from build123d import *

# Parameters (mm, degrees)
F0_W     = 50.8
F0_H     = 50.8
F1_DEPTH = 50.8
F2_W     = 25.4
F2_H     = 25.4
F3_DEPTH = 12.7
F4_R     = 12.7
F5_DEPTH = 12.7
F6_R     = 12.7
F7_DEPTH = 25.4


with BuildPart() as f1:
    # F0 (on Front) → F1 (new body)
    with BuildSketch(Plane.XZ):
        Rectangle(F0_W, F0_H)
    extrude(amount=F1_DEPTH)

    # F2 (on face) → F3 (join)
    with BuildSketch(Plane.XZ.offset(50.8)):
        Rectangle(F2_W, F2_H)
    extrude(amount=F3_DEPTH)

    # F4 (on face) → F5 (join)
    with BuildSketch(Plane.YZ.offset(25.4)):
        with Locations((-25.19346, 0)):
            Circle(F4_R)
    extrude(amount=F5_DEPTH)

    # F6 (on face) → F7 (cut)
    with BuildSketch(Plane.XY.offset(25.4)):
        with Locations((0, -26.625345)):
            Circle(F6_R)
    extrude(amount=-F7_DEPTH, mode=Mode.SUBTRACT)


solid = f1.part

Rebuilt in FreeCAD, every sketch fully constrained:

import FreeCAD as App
import Part
import Sketcher
Q = App.Units.Quantity


def add_polygon(sketch, points):
    """Adds a closed chain of lines whose ends are joined by coincident constraints."""
    first, n = sketch.GeometryCount, len(points)
    for a, b in zip(points, points[1:] + points[:1]):
        sketch.addGeometry(Part.LineSegment(App.Vector(*a, 0), App.Vector(*b, 0)), False)
    for i in range(n):
        sketch.addConstraint(Sketcher.Constraint("Coincident", first + i, 2, first + (i + 1) % n, 1))

doc = App.newDocument("Part")
body = doc.addObject("PartDesign::Body", "Body")

sketch1 = body.newObject("Sketcher::SketchObject", "Sketch")
sketch1.AttachmentSupport = (doc.getObject("XZ_Plane"), [""])
sketch1.MapMode = "FlatFace"
add_polygon(sketch1, [(-25, 25), (-25, -25), (25, -25), (25, 25)])
sketch1.addConstraint(Sketcher.Constraint("Vertical", 0))
sketch1.addConstraint(Sketcher.Constraint("Horizontal", 1))
sketch1.addConstraint(Sketcher.Constraint("Vertical", 2))
sketch1.addConstraint(Sketcher.Constraint("Horizontal", 3))
sketch1.addConstraint(Sketcher.Constraint("Symmetric", 0, 2, 2, 2, -1, 1))
sketch1.addConstraint(Sketcher.Constraint("Equal", 3, 0))
sketch1.addConstraint(Sketcher.Constraint("DistanceX", 1, 1, 1, 2, Q("2 in")))
pad1 = body.newObject("PartDesign::Pad", "Pad")
pad1.Profile = sketch1
pad1.Length = Q("2 in")

sketch2 = body.newObject("Sketcher::SketchObject", "Sketch001")
sketch2.AttachmentSupport = (doc.getObject("XZ_Plane"), [""])
sketch2.MapMode = "FlatFace"
sketch2.AttachmentOffset = App.Placement(App.Vector(0, 0, 2 * 25.4), App.Rotation())
add_polygon(sketch2, [(-13, 13), (-13, -13), (13, -13), (13, 13)])
sketch2.addConstraint(Sketcher.Constraint("Vertical", 0))
sketch2.addConstraint(Sketcher.Constraint("Horizontal", 1))
sketch2.addConstraint(Sketcher.Constraint("Vertical", 2))
sketch2.addConstraint(Sketcher.Constraint("Horizontal", 3))
sketch2.addConstraint(Sketcher.Constraint("Symmetric", 0, 2, 2, 2, -1, 1))
sketch2.addConstraint(Sketcher.Constraint("Equal", 3, 0))
sketch2.addConstraint(Sketcher.Constraint("DistanceX", 1, 1, 1, 2, Q("1 in")))
pad2 = body.newObject("PartDesign::Pad", "Pad001")
pad2.Profile = sketch2
pad2.Length = Q("0.5 in")

sketch3 = body.newObject("Sketcher::SketchObject", "Sketch002")
sketch3.AttachmentSupport = (doc.getObject("YZ_Plane"), [""])
sketch3.MapMode = "FlatFace"
sketch3.AttachmentOffset = App.Placement(App.Vector(0, 0, 1 * 25.4), App.Rotation())
sketch3.addGeometry(Part.Circle(App.Vector(-25, 0, 0), App.Vector(0, 0, 1), 13), False)
sketch3.addConstraint(Sketcher.Constraint("PointOnObject", 0, 3, -1))
sketch3.addConstraint(Sketcher.Constraint("Diameter", 0, Q("1 in")))
sketch3.addConstraint(Sketcher.Constraint("DistanceX", 0, 3, -1, 1, Q("25.19346 mm")))
pad3 = body.newObject("PartDesign::Pad", "Pad002")
pad3.Profile = sketch3
pad3.Length = Q("0.5 in")

sketch4 = body.newObject("Sketcher::SketchObject", "Sketch003")
sketch4.AttachmentSupport = (doc.getObject("XY_Plane"), [""])
sketch4.MapMode = "FlatFace"
sketch4.AttachmentOffset = App.Placement(App.Vector(0, 0, 1 * 25.4), App.Rotation())
sketch4.addGeometry(Part.Circle(App.Vector(0, -27, 0), App.Vector(0, 0, 1), 13), False)
sketch4.addConstraint(Sketcher.Constraint("PointOnObject", 0, 3, -2))
sketch4.addConstraint(Sketcher.Constraint("Diameter", 0, Q("1 in")))
sketch4.addConstraint(Sketcher.Constraint("DistanceY", 0, 3, -1, 1, Q("26.625345 mm")))
pocket1 = body.newObject("PartDesign::Pocket", "Pocket")
pocket1.Profile = sketch4
pocket1.Length = Q("1 in")

doc.recompute()
